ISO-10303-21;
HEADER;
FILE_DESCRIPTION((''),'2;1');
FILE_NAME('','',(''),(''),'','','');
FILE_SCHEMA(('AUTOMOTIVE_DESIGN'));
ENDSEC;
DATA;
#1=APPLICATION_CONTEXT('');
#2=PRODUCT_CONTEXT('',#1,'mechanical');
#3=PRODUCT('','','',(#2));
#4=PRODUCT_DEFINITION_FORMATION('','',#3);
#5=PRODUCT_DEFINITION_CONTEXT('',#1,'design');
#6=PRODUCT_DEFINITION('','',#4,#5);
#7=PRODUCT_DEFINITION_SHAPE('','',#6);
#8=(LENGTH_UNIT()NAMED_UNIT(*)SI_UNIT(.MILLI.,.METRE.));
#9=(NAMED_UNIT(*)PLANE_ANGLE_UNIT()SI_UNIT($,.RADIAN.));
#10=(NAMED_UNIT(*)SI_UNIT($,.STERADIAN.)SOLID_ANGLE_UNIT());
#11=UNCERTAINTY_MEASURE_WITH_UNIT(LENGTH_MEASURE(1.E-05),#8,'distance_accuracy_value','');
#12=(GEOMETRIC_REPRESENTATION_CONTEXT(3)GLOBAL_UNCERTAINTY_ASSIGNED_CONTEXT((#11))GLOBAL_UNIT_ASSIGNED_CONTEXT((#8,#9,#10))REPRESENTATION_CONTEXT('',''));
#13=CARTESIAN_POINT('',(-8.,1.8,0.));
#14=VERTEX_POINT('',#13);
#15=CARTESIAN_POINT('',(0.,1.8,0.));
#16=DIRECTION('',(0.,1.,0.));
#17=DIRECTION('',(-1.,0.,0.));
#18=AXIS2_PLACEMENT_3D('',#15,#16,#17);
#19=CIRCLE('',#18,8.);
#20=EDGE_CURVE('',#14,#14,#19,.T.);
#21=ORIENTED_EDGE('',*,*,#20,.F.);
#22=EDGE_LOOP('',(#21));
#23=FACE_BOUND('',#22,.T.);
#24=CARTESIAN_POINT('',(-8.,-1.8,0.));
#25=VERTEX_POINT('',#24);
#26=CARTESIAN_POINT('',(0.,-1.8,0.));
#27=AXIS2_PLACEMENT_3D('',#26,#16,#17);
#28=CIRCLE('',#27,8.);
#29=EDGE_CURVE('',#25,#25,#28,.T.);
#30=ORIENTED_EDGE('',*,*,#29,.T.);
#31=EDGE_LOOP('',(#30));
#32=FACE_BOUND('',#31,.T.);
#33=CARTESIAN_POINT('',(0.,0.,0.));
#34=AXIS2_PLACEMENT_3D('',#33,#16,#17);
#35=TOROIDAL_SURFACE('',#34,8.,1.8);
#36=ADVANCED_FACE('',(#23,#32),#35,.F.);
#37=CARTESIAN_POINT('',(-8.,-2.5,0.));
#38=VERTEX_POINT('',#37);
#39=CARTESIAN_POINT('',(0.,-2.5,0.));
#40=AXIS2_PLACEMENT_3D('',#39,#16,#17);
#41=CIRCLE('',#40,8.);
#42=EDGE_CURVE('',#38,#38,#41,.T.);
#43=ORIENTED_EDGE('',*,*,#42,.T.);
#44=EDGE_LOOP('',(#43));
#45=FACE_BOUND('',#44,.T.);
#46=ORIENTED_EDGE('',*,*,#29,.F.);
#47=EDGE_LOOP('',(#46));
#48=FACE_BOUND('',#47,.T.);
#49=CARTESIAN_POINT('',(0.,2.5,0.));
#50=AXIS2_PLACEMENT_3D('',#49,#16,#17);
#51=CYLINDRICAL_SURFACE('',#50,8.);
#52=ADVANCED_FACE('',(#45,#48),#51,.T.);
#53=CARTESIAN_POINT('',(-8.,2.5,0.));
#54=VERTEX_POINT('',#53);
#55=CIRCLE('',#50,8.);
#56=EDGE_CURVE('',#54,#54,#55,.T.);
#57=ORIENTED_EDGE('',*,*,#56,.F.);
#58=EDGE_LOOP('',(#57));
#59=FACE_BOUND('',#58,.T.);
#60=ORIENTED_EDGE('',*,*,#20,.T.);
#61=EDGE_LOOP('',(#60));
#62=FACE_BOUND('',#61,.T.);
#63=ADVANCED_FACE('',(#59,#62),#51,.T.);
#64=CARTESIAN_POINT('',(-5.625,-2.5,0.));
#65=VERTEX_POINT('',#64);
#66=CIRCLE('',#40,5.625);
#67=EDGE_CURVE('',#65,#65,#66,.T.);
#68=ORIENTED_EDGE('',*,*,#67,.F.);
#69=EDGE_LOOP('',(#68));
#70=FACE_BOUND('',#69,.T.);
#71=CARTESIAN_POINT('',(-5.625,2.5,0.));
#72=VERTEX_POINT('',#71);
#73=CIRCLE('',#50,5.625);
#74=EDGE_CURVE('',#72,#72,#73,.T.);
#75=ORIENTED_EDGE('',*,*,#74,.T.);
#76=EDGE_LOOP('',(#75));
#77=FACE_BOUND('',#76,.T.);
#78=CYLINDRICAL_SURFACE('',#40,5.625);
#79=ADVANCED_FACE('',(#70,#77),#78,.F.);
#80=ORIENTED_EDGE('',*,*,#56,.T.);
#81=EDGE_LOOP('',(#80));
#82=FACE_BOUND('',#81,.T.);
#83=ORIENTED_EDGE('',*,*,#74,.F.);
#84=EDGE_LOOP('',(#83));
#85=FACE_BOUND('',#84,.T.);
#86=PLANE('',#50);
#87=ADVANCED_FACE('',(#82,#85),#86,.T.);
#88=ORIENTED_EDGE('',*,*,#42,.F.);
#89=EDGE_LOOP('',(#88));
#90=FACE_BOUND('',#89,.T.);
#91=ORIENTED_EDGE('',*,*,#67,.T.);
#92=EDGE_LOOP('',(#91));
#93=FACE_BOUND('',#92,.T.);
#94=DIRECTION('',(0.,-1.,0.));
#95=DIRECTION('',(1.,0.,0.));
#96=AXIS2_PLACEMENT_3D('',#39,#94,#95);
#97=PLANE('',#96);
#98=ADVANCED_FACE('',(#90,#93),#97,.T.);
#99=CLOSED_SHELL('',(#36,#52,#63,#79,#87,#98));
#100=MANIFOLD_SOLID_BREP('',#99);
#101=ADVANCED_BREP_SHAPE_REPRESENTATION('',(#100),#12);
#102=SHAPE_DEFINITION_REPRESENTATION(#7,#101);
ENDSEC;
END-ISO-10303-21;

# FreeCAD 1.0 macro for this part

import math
import FreeCAD as App
import Part
import Sketcher
from FreeCAD import Vector
Q = App.Units.Quantity

doc = App.newDocument("Part")
body = doc.addObject("PartDesign::Body", "Body")

# Sketch on XY plane
sketch1 = doc.addObject("Sketcher::SketchObject", "Sketch")
body.addObject(sketch1)
sketch1.AttachmentSupport = (doc.XY_Plane, [""])
sketch1.MapMode = "FlatFace"
sketch1.addGeometry(Part.LineSegment(Vector(-8, -1.8, 0), Vector(-8, -2.5, 0)), False)
sketch1.addGeometry(Part.LineSegment(Vector(-8, -2.5, 0), Vector(0, -2.5, 0)), False)
sketch1.addGeometry(Part.LineSegment(Vector(0, -2.5, 0), Vector(0, 2.5, 0)), False)
sketch1.addGeometry(Part.LineSegment(Vector(0, 2.5, 0), Vector(-8, 2.5, 0)), False)
sketch1.addGeometry(Part.LineSegment(Vector(-8, 2.5, 0), Vector(-8, 1.8, 0)), False)
sketch1.addGeometry(Part.ArcOfCircle(Part.Circle(Vector(-8, 0, 0), Vector(0, 0, 1), 1.8), math.radians(-90), math.radians(90)), False)
sketch1.addConstraint(Sketcher.Constraint("Coincident", 0, 2, 1, 1))
sketch1.addConstraint(Sketcher.Constraint("Coincident", 1, 2, 2, 1))
sketch1.addConstraint(Sketcher.Constraint("Coincident", 2, 2, 3, 1))
sketch1.addConstraint(Sketcher.Constraint("Coincident", 3, 2, 4, 1))
sketch1.addConstraint(Sketcher.Constraint("Coincident", 4, 2, 5, 2))
sketch1.addConstraint(Sketcher.Constraint("Coincident", 5, 1, 0, 1))
sketch1.addConstraint(Sketcher.Constraint("Vertical", 0))
sketch1.addConstraint(Sketcher.Constraint("Horizontal", 1))
sketch1.addConstraint(Sketcher.Constraint("Vertical", 2))
sketch1.addConstraint(Sketcher.Constraint("Horizontal", 3))
sketch1.addConstraint(Sketcher.Constraint("Vertical", 4))
sketch1.addConstraint(Sketcher.Constraint("Symmetric", 1, 2, 2, 2, -1, 1))
sketch1.addConstraint(Sketcher.Constraint("Symmetric", 4, 2, 5, 1, -1))
sketch1.addConstraint(Sketcher.Constraint("Vertical", 5, 3, 0, 2))
sketch1.addConstraint(Sketcher.Constraint("Radius", 5, Q("1.8 mm")))
sketch1.addConstraint(Sketcher.Constraint("DistanceX", 1, 1, 1, 2, Q("8 mm")))
sketch1.addConstraint(Sketcher.Constraint("DistanceY", 2, 1, 2, 2, Q("5 mm")))
revolution = doc.addObject("PartDesign::Revolution", "Revolution")
body.addObject(revolution)
revolution.Profile = sketch1
revolution.ReferenceAxis = (sketch1, ["V_Axis"])
revolution.Angle = 360

# Sketch on XZ plane
sketch2 = doc.addObject("Sketcher::SketchObject", "Sketch001")
body.addObject(sketch2)
sketch2.AttachmentSupport = (doc.XZ_Plane, [""])
sketch2.MapMode = "FlatFace"
sketch2.AttachmentOffset = App.Placement(Vector(0, 0, -2.5), App.Rotation())
sketch2.addGeometry(Part.Circle(Vector(0, 0, 0), Vector(0, 0, 1), 5.625), False)
sketch2.addConstraint(Sketcher.Constraint("Coincident", 0, 3, -1, 1))
sketch2.addConstraint(Sketcher.Constraint("Diameter", 0, Q("11.25 mm")))
pocket1 = doc.addObject("PartDesign::Pocket", "Pocket")
body.addObject(pocket1)
pocket1.Profile = sketch2
pocket1.Type = "ThroughAll"
pocket1.Reversed = True

doc.recompute()
